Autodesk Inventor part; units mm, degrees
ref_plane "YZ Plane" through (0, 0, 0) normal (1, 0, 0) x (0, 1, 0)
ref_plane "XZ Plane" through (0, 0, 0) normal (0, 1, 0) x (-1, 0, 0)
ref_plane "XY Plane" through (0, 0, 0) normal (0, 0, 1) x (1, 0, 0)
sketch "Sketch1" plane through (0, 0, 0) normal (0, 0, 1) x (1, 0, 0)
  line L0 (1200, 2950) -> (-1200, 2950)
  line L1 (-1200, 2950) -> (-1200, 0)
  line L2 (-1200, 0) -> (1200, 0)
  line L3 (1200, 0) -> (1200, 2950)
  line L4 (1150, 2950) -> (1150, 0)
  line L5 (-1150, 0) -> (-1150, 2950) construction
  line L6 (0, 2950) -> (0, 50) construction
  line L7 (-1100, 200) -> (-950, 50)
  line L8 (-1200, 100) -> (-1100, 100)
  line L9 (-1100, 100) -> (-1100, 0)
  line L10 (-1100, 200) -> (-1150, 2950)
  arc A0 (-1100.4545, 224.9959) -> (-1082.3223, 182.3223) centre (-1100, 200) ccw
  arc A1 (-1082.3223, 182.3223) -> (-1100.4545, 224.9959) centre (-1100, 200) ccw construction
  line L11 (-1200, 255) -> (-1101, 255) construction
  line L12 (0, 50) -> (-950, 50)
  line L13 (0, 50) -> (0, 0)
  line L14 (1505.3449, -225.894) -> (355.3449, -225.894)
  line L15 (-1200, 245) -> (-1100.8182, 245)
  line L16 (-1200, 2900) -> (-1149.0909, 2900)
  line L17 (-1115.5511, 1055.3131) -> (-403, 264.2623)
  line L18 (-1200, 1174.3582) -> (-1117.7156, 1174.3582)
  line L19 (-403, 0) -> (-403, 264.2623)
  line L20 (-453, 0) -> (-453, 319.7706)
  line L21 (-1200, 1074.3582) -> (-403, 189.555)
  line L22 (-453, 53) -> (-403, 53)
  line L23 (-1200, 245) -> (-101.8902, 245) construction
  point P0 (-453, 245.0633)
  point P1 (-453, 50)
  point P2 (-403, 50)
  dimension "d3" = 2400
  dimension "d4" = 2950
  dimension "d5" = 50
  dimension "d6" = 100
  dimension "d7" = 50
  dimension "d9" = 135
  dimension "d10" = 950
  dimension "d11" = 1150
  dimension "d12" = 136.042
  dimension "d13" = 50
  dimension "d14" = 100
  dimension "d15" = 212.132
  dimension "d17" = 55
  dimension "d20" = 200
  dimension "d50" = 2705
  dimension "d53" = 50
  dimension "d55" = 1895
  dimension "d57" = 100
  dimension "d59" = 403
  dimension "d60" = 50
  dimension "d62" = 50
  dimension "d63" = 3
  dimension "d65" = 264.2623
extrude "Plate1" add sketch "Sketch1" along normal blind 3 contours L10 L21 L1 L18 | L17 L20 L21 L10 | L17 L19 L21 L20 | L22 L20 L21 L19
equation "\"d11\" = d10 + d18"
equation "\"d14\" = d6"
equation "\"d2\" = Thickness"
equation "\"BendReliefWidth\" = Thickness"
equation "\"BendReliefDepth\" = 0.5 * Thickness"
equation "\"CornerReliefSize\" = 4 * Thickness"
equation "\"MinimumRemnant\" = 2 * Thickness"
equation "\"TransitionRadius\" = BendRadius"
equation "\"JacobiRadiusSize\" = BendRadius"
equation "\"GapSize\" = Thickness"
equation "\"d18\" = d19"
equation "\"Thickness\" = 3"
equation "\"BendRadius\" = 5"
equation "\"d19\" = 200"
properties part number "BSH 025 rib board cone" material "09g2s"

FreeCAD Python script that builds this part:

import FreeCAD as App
import Part
import Sketcher

V = App.Vector
Q = App.Units.Quantity


def add_polygon(sketch, points):
    """Adds a closed chain of lines whose ends are joined by coincident constraints."""
    first, n = sketch.GeometryCount, len(points)
    for a, b in zip(points, points[1:] + points[:1]):
        sketch.addGeometry(Part.LineSegment(App.Vector(*a, 0), App.Vector(*b, 0)), False)
    for i in range(n):
        sketch.addConstraint(Sketcher.Constraint("Coincident", first + i, 2, first + (i + 1) % n, 1))

doc = App.newDocument("Part")
body = doc.addObject("PartDesign::Body", "Body")

sketch1 = doc.addObject("Sketcher::SketchObject", "Sketch")
body.addObject(sketch1)
sketch1.AttachmentSupport = (doc.XY_Plane, [""])
sketch1.MapMode = "FlatFace"
add_polygon(sketch1, [(-1116, 1055), (-1118, 1174), (-1200, 1174), (-1200, 1074), (-453, 245), (-453, 53), (-403, 53), (-403, 264)])
sketch1.addConstraint([
    Sketcher.Constraint("Horizontal", 1),
    Sketcher.Constraint("Vertical", 2),
    Sketcher.Constraint("Vertical", 4),
    Sketcher.Constraint("Horizontal", 5),
    Sketcher.Constraint("Vertical", 6),
    Sketcher.Constraint("Parallel", 3, 7),
    Sketcher.Constraint("DistanceY", 2, 2, 2, 1, Q("3.937 in")),
    Sketcher.Constraint("DistanceX", 5, 1, 5, 2, Q("1.9685 in")),
    Sketcher.Constraint("DistanceX", 5, 2, -1, 1, Q("403 mm")),
    Sketcher.Constraint("DistanceY", -1, 1, 6, 2, Q("264.2623 mm")),
    Sketcher.Constraint("Distance", 3, Q("43.942 in")),
    Sketcher.Constraint("Distance", 0, Q("4.6876 in")),
    Sketcher.Constraint("DistanceX", 1, 2, 1, 1, Q("82.2844 mm")),
    Sketcher.Constraint("DistanceY", 4, 2, 4, 1, Q("192.0634 mm")),
    Sketcher.Constraint("DistanceY", 6, 1, 6, 2, Q("211.2623 mm")),
    Sketcher.Constraint("DistanceX", 1, 2, -1, 1, Q("47.2441 in")),
])
pad1 = doc.addObject("PartDesign::Pad", "Pad")
body.addObject(pad1)
pad1.Profile = sketch1
pad1.Length = Q("0.1181102 in")

doc.recompute()
